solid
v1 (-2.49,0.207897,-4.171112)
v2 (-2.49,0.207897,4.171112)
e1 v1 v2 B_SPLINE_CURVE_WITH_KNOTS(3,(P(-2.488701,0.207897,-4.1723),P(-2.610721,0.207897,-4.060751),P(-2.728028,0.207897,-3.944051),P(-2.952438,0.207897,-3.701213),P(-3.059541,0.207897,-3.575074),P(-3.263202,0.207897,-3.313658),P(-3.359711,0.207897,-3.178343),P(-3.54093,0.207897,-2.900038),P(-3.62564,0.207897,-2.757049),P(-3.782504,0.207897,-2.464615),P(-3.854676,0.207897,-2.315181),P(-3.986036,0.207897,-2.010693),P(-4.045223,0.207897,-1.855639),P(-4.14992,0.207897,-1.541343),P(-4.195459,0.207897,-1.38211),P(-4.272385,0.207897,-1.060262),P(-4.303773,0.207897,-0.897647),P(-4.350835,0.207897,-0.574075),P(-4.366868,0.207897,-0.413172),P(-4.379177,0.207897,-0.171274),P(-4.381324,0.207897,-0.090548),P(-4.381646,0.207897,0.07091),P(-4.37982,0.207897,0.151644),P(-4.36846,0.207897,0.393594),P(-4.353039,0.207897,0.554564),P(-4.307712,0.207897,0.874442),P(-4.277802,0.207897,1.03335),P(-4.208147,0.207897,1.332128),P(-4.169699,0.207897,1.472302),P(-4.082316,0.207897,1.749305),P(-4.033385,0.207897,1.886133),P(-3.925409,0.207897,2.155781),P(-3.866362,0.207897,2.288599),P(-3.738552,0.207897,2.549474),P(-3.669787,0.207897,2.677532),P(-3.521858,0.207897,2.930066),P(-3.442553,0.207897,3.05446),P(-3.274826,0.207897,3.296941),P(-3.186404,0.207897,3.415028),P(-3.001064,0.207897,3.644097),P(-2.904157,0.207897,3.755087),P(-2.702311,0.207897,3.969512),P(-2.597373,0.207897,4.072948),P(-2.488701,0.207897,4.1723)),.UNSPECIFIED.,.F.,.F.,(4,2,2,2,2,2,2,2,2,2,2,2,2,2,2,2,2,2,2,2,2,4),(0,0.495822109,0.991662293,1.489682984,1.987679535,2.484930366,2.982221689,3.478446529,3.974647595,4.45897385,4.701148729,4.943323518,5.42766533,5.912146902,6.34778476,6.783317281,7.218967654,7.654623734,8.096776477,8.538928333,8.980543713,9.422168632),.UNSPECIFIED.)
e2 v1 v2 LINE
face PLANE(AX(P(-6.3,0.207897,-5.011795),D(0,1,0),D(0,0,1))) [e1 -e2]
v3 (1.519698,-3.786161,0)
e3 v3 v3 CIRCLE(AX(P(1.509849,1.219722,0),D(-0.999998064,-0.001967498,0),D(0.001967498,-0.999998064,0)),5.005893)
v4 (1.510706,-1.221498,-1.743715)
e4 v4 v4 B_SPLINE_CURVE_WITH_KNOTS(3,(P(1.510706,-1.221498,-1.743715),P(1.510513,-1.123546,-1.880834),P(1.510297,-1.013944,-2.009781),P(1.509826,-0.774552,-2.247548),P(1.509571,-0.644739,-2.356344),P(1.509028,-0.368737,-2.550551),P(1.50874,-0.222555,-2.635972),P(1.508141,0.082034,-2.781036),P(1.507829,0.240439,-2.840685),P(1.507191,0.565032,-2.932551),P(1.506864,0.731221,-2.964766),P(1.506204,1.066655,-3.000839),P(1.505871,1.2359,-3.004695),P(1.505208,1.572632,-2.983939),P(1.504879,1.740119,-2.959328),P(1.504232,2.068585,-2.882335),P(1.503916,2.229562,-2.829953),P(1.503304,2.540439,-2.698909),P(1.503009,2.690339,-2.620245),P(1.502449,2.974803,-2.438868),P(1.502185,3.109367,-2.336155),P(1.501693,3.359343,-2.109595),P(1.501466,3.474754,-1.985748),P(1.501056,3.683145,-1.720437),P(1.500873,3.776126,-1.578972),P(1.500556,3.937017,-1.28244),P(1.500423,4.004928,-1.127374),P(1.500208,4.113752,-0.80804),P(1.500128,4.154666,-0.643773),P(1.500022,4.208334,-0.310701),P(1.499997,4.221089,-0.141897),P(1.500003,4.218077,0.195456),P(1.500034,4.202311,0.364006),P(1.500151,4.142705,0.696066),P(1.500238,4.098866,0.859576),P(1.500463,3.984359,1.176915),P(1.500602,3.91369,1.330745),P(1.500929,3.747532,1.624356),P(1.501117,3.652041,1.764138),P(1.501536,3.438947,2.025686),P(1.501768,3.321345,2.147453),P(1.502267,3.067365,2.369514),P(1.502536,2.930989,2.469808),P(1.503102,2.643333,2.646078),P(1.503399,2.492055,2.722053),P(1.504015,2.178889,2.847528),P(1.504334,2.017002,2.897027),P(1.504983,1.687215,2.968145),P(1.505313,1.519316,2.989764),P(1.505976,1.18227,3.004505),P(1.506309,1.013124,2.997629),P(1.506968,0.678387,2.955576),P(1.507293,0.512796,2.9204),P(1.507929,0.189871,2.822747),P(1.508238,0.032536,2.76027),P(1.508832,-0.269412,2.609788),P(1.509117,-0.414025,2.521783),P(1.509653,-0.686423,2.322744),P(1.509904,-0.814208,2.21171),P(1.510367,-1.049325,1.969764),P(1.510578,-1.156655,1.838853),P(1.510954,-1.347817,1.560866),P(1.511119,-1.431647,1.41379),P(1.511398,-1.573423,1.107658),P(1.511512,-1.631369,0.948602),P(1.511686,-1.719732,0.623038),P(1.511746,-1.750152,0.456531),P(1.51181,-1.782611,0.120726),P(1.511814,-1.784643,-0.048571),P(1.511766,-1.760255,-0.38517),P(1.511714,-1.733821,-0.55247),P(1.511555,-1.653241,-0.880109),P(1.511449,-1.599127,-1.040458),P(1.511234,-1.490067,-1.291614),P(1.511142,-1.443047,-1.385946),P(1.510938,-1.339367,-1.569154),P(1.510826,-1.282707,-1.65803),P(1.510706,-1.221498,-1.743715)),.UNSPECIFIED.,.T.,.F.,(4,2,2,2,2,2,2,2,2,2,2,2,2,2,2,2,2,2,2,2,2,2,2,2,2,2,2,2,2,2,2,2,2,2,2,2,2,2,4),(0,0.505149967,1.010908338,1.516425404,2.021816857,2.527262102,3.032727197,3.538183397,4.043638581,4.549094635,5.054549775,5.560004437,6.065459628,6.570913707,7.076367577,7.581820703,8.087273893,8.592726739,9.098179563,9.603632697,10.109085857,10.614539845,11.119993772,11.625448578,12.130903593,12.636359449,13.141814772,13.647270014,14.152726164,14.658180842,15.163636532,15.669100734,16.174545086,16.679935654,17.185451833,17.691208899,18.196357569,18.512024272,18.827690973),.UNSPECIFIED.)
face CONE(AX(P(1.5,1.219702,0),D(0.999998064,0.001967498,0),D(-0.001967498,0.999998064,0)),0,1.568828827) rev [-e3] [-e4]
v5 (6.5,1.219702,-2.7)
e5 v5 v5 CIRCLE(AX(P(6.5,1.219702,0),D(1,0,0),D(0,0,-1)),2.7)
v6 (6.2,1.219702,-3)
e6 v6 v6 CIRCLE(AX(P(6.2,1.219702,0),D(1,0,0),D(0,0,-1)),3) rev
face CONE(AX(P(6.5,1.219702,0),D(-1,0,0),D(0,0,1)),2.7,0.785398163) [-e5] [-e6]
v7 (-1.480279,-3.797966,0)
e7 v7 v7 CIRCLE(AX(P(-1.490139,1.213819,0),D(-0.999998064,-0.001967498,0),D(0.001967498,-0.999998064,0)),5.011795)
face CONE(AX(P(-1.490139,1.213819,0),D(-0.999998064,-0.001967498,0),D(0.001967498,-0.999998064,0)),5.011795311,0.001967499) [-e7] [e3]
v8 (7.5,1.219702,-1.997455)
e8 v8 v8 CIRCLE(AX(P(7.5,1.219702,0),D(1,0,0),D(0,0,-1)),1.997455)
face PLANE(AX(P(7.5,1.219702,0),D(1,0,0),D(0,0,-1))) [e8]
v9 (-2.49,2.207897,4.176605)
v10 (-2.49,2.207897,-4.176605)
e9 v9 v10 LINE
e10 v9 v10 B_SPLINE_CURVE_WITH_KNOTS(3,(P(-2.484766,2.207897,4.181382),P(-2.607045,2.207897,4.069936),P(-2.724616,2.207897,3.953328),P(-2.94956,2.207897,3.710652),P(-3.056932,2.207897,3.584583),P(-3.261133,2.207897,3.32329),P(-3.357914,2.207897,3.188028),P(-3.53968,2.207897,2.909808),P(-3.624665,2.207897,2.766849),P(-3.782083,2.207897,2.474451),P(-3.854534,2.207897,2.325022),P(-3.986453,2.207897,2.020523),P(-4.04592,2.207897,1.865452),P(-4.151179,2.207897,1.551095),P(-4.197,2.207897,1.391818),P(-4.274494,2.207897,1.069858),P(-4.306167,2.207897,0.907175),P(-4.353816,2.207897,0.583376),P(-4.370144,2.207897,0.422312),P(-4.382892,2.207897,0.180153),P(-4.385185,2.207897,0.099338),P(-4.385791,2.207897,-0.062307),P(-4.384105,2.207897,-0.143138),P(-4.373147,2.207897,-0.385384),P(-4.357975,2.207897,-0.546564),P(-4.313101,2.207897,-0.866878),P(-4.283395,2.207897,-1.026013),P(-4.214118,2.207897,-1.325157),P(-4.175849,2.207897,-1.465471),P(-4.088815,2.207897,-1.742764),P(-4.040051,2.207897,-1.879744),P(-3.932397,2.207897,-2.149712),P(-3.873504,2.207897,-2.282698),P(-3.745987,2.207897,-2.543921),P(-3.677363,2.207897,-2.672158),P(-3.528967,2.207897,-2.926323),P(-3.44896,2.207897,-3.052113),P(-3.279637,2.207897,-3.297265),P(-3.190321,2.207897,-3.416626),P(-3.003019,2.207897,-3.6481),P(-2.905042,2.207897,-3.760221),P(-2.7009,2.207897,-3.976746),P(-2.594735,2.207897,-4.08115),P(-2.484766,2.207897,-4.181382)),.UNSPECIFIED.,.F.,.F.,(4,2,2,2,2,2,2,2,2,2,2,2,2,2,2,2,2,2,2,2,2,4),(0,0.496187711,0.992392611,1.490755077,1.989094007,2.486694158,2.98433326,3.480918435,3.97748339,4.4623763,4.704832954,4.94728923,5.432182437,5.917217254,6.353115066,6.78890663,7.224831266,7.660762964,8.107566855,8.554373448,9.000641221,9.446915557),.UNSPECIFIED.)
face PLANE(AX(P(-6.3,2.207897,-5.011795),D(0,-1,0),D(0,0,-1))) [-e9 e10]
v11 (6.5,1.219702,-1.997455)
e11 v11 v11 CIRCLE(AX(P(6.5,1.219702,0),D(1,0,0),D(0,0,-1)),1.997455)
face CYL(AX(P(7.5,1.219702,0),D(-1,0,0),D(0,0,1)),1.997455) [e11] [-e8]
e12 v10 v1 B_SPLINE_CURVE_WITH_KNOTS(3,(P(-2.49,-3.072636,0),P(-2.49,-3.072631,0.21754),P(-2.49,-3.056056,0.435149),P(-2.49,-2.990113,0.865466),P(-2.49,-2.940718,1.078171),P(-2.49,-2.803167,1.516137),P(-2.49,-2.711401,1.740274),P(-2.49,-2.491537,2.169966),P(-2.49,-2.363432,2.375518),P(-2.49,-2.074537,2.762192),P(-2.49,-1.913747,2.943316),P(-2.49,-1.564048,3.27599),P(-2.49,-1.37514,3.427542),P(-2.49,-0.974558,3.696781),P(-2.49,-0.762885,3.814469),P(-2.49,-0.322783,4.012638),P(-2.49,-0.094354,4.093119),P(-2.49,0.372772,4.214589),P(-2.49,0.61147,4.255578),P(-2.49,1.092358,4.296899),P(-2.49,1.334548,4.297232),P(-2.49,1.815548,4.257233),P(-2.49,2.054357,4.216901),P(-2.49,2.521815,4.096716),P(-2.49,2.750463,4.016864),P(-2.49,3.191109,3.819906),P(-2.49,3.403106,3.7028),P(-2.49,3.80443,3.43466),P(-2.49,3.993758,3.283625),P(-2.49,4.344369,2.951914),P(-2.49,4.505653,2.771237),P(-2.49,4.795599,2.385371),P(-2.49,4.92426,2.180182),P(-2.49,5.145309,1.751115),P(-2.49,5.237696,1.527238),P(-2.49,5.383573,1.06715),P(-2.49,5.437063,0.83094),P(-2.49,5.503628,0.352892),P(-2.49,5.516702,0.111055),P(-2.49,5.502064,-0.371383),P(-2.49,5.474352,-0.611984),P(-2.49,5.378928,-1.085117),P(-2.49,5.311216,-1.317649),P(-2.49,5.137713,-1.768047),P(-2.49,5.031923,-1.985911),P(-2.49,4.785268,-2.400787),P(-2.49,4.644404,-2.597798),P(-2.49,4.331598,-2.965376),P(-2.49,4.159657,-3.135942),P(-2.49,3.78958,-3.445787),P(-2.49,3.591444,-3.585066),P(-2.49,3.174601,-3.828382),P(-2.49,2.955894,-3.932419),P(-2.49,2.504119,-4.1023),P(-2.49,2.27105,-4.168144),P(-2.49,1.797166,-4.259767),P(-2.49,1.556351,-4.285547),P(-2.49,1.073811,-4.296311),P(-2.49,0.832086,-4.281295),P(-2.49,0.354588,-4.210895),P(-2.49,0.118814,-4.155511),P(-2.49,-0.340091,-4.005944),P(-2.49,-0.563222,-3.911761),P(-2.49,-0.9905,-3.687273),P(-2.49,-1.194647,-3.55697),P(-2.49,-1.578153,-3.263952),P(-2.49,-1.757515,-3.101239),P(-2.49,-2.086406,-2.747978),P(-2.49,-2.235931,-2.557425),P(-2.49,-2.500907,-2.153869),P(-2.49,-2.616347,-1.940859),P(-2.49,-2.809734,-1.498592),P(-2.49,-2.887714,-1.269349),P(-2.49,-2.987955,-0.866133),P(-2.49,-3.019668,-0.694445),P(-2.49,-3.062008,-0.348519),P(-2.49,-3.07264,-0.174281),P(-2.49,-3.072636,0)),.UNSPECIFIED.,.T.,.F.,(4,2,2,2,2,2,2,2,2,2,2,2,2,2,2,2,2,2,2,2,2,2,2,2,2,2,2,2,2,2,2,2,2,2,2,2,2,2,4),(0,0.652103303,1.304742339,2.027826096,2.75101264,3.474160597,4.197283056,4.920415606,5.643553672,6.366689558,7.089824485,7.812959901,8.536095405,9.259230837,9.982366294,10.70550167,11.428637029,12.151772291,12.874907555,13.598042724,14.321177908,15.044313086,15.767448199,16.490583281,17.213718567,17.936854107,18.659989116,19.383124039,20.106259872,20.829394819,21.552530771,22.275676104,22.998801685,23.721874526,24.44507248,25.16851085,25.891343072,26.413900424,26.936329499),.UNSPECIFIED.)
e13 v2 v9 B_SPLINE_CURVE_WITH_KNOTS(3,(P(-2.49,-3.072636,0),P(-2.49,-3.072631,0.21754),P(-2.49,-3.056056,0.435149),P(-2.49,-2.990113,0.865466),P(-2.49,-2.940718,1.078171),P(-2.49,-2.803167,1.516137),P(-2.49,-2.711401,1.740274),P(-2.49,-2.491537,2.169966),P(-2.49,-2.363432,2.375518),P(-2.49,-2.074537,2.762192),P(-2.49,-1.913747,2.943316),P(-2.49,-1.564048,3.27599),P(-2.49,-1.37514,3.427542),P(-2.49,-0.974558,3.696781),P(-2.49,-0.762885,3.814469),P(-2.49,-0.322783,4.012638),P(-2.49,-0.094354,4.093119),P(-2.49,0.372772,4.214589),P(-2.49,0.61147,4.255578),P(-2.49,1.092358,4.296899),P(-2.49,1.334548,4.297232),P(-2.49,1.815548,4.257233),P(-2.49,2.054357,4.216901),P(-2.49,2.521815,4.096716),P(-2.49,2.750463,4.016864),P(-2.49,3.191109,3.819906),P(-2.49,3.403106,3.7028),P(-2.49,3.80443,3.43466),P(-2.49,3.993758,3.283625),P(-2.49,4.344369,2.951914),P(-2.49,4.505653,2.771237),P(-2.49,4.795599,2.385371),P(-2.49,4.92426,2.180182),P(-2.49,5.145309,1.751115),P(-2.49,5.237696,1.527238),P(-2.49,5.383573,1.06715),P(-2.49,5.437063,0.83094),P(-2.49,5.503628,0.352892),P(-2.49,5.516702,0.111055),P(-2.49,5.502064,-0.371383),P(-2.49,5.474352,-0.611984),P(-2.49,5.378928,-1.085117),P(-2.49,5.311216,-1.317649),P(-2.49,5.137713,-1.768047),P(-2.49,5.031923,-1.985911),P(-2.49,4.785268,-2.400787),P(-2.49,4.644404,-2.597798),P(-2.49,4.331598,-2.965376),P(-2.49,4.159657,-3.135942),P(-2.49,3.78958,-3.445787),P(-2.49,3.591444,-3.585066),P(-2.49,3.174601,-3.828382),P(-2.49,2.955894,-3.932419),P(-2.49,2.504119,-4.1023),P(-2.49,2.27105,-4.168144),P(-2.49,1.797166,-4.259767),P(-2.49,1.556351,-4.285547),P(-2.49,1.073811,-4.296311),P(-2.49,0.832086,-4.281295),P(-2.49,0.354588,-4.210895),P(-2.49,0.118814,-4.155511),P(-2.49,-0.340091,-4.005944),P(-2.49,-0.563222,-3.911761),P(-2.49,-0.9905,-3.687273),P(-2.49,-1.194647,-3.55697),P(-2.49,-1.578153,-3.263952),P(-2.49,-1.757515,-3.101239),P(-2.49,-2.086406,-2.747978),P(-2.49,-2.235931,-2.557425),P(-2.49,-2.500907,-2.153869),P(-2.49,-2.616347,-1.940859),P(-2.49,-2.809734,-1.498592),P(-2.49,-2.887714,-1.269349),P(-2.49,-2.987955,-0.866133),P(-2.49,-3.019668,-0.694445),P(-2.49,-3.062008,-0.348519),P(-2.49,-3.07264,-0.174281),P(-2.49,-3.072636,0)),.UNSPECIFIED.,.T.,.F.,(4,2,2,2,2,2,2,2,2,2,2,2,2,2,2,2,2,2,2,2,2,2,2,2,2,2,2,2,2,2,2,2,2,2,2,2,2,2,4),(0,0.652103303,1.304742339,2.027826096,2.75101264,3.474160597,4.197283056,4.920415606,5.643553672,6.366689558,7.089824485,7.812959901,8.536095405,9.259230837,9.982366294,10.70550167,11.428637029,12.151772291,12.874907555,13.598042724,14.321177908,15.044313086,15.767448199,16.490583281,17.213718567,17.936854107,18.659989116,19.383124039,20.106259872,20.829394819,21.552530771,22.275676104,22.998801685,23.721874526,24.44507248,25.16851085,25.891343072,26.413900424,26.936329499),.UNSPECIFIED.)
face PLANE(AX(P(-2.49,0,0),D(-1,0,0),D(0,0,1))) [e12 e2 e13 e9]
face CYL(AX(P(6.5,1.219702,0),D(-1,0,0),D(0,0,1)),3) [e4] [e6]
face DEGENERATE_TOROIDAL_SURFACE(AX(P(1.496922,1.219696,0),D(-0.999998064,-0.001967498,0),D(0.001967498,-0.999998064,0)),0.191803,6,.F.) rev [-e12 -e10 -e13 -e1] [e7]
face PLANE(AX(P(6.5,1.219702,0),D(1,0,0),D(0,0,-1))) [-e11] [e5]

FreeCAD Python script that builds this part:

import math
import FreeCAD as App
import Part
import Sketcher
from FreeCAD import Vector
Q = App.Units.Quantity


def edges_at(feature, points):
    """Names of the edges that pass closest to the given points."""
    edges = feature.Shape.Edges
    near = lambda p: min(range(len(edges)), key=lambda i: edges[i].distToShape(Part.Vertex(*p))[0])
    return sorted({f"Edge{near(p) + 1}" for p in points})


def add_polygon(sketch, points):
    """Adds a closed chain of lines whose ends are joined by coincident constraints."""
    first, n = sketch.GeometryCount, len(points)
    for a, b in zip(points, points[1:] + points[:1]):
        sketch.addGeometry(Part.LineSegment(App.Vector(*a, 0), App.Vector(*b, 0)), False)
    for i in range(n):
        sketch.addConstraint(Sketcher.Constraint("Coincident", first + i, 2, first + (i + 1) % n, 1))

doc = App.newDocument("Part")
body = doc.addObject("PartDesign::Body", "Body")

# Sketch on XY plane
sketch1 = body.newObject("Sketcher::SketchObject", "Sketch")
sketch1.AttachmentSupport = (doc.getObject("XY_Plane"), [""])
sketch1.MapMode = "FlatFace"
sketch1.addGeometry([
    Part.ArcOfCircle(Part.Circle(Vector(1.497299, 1.027894, 0), Vector(0, 0, 1), 6), math.radians(119.970225), math.radians(178.280838)),
    Part.LineSegment(Vector(-4.5, 1.207897, 0), Vector(1.5, 1.219702, 0)),
    Part.LineSegment(Vector(1.5, 1.219702, 0), Vector(1.5, 6.225605, 0)),
    Part.LineSegment(Vector(1.5, 6.225605, 0), Vector(-1.5, 6.225605, 0)),
], False)
sketch1.addGeometry(Part.LineSegment(Vector(-4.5, 1.207897, 0), Vector(1.509849, 1.219722, 0)), True)  # axis
sketch1.addConstraint([
    Sketcher.Constraint("Coincident", 0, 2, 1, 1),
    Sketcher.Constraint("Coincident", 1, 2, 2, 1),
    Sketcher.Constraint("Coincident", 2, 2, 3, 1),
    Sketcher.Constraint("Coincident", 3, 2, 0, 1),
    Sketcher.Constraint("Vertical", 2),
    Sketcher.Constraint("Horizontal", 3),
    Sketcher.Constraint("Coincident", 4, 1, 0, 2),
    Sketcher.Constraint("Parallel", 1, 4),
    Sketcher.Constraint("Radius", 0, Q("6 mm")),
    Sketcher.Constraint("DistanceX", 3, 2, 3, 1, Q("3 mm")),
    Sketcher.Constraint("DistanceX", 0, 2, 1, 2, Q("6 mm")),
    Sketcher.Constraint("DistanceX", 0, 2, -1, 1, Q("4.5 mm")),
    Sketcher.Constraint("DistanceX", -1, 1, 0, 3, Q("1.497299 mm")),
    Sketcher.Constraint("Distance", 4, Q("6.009861 mm")),
    Sketcher.Constraint("DistanceY", 2, 1, 2, 2, Q("5.005903 mm")),
    Sketcher.Constraint("DistanceY", -1, 1, 4, 2, Q("1.219722 mm")),
])
revolution = body.newObject("PartDesign::Revolution", "Revolution")
revolution.Profile = sketch1
revolution.ReferenceAxis = (sketch1, ["Axis0"])
revolution.Angle = 360

# Sketch on YZ plane
sketch2 = body.newObject("Sketcher::SketchObject", "Sketch001")
sketch2.AttachmentSupport = (doc.getObject("YZ_Plane"), [""])
sketch2.MapMode = "FlatFace"
sketch2.AttachmentOffset = App.Placement(Vector(0, 0, -4.3), App.Rotation())
add_polygon(sketch2, [(2.207897, -5.011795), (0.207897, -5.011795), (0.207897, 5.011795), (2.207897, 5.011795)])  # lines 0-3
sketch2.addConstraint([
    Sketcher.Constraint("Horizontal", 0),
    Sketcher.Constraint("Vertical", 1),
    Sketcher.Constraint("Horizontal", 2),
    Sketcher.Constraint("Vertical", 3),
    Sketcher.Constraint("DistanceX", 0, 2, 0, 1, Q("2 mm")),
    Sketcher.Constraint("DistanceY", 1, 1, 1, 2, Q("10.023591 mm")),
    Sketcher.Constraint("DistanceX", -1, 1, 0, 2, Q("0.207897 mm")),
    Sketcher.Constraint("DistanceY", 0, 2, -1, 1, Q("5.011795 mm")),
])
pocket1 = body.newObject("PartDesign::Pocket", "Pocket")
pocket1.Profile = sketch2
pocket1.Type = "TwoLengths"
pocket1.Length = 2
pocket1.Length2 = 1.81

# Sketch on YZ plane
sketch3 = body.newObject("Sketcher::SketchObject", "Sketch002")
sketch3.AttachmentSupport = (doc.getObject("YZ_Plane"), [""])
sketch3.MapMode = "FlatFace"
sketch3.AttachmentOffset = App.Placement(Vector(0, 0, 1.5), App.Rotation())
sketch3.addGeometry(Part.Circle(Vector(1.219702, 0, 0), Vector(0, 0, 1), 3), False)
sketch3.addConstraint([
    Sketcher.Constraint("PointOnObject", 0, 3, -1),
    Sketcher.Constraint("Diameter", 0, Q("6 mm")),
    Sketcher.Constraint("DistanceX", -1, 1, 0, 3, Q("1.219702 mm")),
])
pad1 = body.newObject("PartDesign::Pad", "Pad")
pad1.Profile = sketch3
pad1.Length = 5
doc.recompute()

chamfer = body.newObject("PartDesign::Chamfer", "Chamfer")
chamfer.Base = (pad1, edges_at(pad1, [(6.5, 3.661, 1.744)]))
chamfer.Size = 0.3

# Sketch on YZ plane
sketch4 = body.newObject("Sketcher::SketchObject", "Sketch003")
sketch4.AttachmentSupport = (doc.getObject("YZ_Plane"), [""])
sketch4.MapMode = "FlatFace"
sketch4.AttachmentOffset = App.Placement(Vector(0, 0, 6.5), App.Rotation())
sketch4.addGeometry(Part.Circle(Vector(1.219702, 0, 0), Vector(0, 0, 1), 1.997455), False)
sketch4.addConstraint([
    Sketcher.Constraint("PointOnObject", 0, 3, -1),
    Sketcher.Constraint("Diameter", 0, Q("3.99491 mm")),
    Sketcher.Constraint("DistanceX", -1, 1, 0, 3, Q("1.219702 mm")),
])
pad2 = body.newObject("PartDesign::Pad", "Pad001")
pad2.Profile = sketch4
pad2.Length = 1

doc.recompute()
